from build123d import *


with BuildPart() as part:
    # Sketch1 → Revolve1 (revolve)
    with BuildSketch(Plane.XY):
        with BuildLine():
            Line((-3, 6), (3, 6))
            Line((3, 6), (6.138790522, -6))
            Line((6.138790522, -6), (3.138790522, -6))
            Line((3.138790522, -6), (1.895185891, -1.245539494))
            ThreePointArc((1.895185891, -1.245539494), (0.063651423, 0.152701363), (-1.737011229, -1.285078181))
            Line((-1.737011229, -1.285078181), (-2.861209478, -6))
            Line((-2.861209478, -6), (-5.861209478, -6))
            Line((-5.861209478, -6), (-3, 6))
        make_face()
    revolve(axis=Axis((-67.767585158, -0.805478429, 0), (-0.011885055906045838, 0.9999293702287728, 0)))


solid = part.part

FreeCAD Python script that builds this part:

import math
import FreeCAD as App
import Part
import Sketcher

V = App.Vector

doc = App.newDocument("Part")
body = doc.addObject("PartDesign::Body", "Body")

# Sketch on XY plane
sketch1 = doc.addObject("Sketcher::SketchObject", "Sketch")
body.addObject(sketch1)
sketch1.AttachmentSupport = (doc.XY_Plane, [""])
sketch1.MapMode = "FlatFace"
sketch1.addGeometry([
    Part.LineSegment(V(3, 6, 0), V(-3, 6, 0)),  # 0
    Part.LineSegment(V(-3, 6, 0), V(-5.861209, -6, 0)),  # 1
    Part.LineSegment(V(-5.861209, -6, 0), V(-2.861209, -6, 0)),  # 2
    Part.LineSegment(V(-2.861209, -6, 0), V(-1.737011, -1.285078, 0)),  # 3
    Part.ArcOfCircle(Part.Circle(V(0.084029, -1.719276, 0), V(0, 0, 1), 1.872089), math.radians(14.658221), math.radians(166.589129)),  # 4
    Part.LineSegment(V(1.895186, -1.245539, 0), V(3.138791, -6, 0)),  # 5
    Part.LineSegment(V(3.138791, -6, 0), V(6.138791, -6, 0)),  # 6
    Part.LineSegment(V(6.138791, -6, 0), V(3, 6, 0)),  # 7
], False)
sketch1.addGeometry(Part.LineSegment(V(-67.695413, -6.877586, 0), V(-67.839314, 5.229327, 0)), True)  # axis
sketch1.addConstraint([
    Sketcher.Constraint("Coincident", 0, 2, 1, 1),
    Sketcher.Constraint("Coincident", 1, 2, 2, 1),
    Sketcher.Constraint("Coincident", 2, 2, 3, 1),
    Sketcher.Constraint("Tangent", 3, 2, 4, 2),
    Sketcher.Constraint("Tangent", 4, 1, 5, 1),
    Sketcher.Constraint("Coincident", 5, 2, 6, 1),
    Sketcher.Constraint("Coincident", 6, 2, 7, 1),
    Sketcher.Constraint("Coincident", 7, 2, 0, 1),
    Sketcher.Constraint("Horizontal", 0),
    Sketcher.Constraint("Horizontal", 2),
    Sketcher.Constraint("Horizontal", 6),
    Sketcher.Constraint("Parallel", 1, 3),
    Sketcher.Constraint("Parallel", 5, 7),
    Sketcher.Constraint("Horizontal", 2, 2, 5, 2),
    Sketcher.Constraint("Equal", 2, 6),
    Sketcher.Constraint("DistanceX", 0, 2, 0, 1, 6.0),
    Sketcher.Constraint("DistanceX", 2, 1, 2, 2, 3.0),
    Sketcher.Constraint("DistanceX", 0, 2, -1, 1, 3.0),
    Sketcher.Constraint("DistanceY", -1, 1, 0, 2, 6.0),
    Sketcher.Constraint("DistanceY", 1, 2, -1, 1, 6.0),
    Sketcher.Constraint("DistanceX", 2, 2, 5, 2, 6.0),
    Sketcher.Constraint("Radius", 4, 1.872089),
    Sketcher.Constraint("DistanceY", 4, 3, 3, 2, 0.434198),
    Sketcher.Constraint("DistanceX", 8, 1, 3, 2, 65.958401),
    Sketcher.Constraint("DistanceX", 8, 2, 8, 1, 0.143901),
    Sketcher.Constraint("DistanceY", 8, 1, 4, 3, 5.158309),
    Sketcher.Constraint("Distance", 8, 12.107767),
])
revolution = doc.addObject("PartDesign::Revolution", "Revolution")
body.addObject(revolution)
revolution.Profile = sketch1
revolution.ReferenceAxis = (sketch1, ["Axis0"])
revolution.Angle = 360

doc.recompute()
